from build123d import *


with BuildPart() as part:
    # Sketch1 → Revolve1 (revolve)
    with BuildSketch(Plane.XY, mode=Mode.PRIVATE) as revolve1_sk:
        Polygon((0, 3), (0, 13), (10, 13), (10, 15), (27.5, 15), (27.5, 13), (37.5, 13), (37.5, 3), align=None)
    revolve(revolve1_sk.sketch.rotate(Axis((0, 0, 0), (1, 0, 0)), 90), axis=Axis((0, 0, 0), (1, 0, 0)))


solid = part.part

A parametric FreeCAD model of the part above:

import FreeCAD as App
import Part
import Sketcher

V = App.Vector

doc = App.newDocument("Part")
body = doc.addObject("PartDesign::Body", "Body")

# Sketch on XY plane
sketch1 = body.newObject("Sketcher::SketchObject", "Sketch")
sketch1.AttachmentSupport = (doc.getObject("XY_Plane"), [""])
sketch1.MapMode = "FlatFace"
sketch1.addGeometry([
    Part.LineSegment(V(0, 13, 0), V(0, 3, 0)),  # 0
    Part.LineSegment(V(0, 3, 0), V(37.5, 3, 0)),  # 1
    Part.LineSegment(V(37.5, 3, 0), V(37.5, 13, 0)),  # 2
    Part.LineSegment(V(37.5, 13, 0), V(27.5, 13, 0)),  # 3
    Part.LineSegment(V(27.5, 13, 0), V(27.5, 15, 0)),  # 4
    Part.LineSegment(V(27.5, 15, 0), V(10, 15, 0)),  # 5
    Part.LineSegment(V(10, 15, 0), V(10, 13, 0)),  # 6
    Part.LineSegment(V(10, 13, 0), V(0, 13, 0)),  # 7
], False)
sketch1.addConstraint([
    Sketcher.Constraint("Coincident", 0, 2, 1, 1),
    Sketcher.Constraint("Coincident", 1, 2, 2, 1),
    Sketcher.Constraint("Coincident", 2, 2, 3, 1),
    Sketcher.Constraint("Coincident", 3, 2, 4, 1),
    Sketcher.Constraint("Coincident", 4, 2, 5, 1),
    Sketcher.Constraint("Coincident", 5, 2, 6, 1),
    Sketcher.Constraint("Coincident", 6, 2, 7, 1),
    Sketcher.Constraint("Coincident", 7, 2, 0, 1),
    Sketcher.Constraint("Vertical", 0),
    Sketcher.Constraint("Horizontal", 1),
    Sketcher.Constraint("Vertical", 2),
    Sketcher.Constraint("Horizontal", 3),
    Sketcher.Constraint("Vertical", 4),
    Sketcher.Constraint("Horizontal", 5),
    Sketcher.Constraint("Vertical", 6),
    Sketcher.Constraint("Horizontal", 7),
    Sketcher.Constraint("PointOnObject", 0, 2, -2),
    Sketcher.Constraint("Horizontal", 3, 2, 6, 2),
    Sketcher.Constraint("Equal", 3, 7),
    Sketcher.Constraint("Equal", 7, 0),
    Sketcher.Constraint("DistanceX", 3, 2, 3, 1, 10.0),
    Sketcher.Constraint("DistanceY", 4, 1, 4, 2, 2.0),
    Sketcher.Constraint("DistanceX", 1, 1, 1, 2, 37.5),
    Sketcher.Constraint("DistanceY", -1, 1, 0, 2, 3.0),
])
revolution = body.newObject("PartDesign::Revolution", "Revolution")
revolution.Profile = sketch1
revolution.ReferenceAxis = (sketch1, ["H_Axis"])
revolution.Angle = 360

doc.recompute()
